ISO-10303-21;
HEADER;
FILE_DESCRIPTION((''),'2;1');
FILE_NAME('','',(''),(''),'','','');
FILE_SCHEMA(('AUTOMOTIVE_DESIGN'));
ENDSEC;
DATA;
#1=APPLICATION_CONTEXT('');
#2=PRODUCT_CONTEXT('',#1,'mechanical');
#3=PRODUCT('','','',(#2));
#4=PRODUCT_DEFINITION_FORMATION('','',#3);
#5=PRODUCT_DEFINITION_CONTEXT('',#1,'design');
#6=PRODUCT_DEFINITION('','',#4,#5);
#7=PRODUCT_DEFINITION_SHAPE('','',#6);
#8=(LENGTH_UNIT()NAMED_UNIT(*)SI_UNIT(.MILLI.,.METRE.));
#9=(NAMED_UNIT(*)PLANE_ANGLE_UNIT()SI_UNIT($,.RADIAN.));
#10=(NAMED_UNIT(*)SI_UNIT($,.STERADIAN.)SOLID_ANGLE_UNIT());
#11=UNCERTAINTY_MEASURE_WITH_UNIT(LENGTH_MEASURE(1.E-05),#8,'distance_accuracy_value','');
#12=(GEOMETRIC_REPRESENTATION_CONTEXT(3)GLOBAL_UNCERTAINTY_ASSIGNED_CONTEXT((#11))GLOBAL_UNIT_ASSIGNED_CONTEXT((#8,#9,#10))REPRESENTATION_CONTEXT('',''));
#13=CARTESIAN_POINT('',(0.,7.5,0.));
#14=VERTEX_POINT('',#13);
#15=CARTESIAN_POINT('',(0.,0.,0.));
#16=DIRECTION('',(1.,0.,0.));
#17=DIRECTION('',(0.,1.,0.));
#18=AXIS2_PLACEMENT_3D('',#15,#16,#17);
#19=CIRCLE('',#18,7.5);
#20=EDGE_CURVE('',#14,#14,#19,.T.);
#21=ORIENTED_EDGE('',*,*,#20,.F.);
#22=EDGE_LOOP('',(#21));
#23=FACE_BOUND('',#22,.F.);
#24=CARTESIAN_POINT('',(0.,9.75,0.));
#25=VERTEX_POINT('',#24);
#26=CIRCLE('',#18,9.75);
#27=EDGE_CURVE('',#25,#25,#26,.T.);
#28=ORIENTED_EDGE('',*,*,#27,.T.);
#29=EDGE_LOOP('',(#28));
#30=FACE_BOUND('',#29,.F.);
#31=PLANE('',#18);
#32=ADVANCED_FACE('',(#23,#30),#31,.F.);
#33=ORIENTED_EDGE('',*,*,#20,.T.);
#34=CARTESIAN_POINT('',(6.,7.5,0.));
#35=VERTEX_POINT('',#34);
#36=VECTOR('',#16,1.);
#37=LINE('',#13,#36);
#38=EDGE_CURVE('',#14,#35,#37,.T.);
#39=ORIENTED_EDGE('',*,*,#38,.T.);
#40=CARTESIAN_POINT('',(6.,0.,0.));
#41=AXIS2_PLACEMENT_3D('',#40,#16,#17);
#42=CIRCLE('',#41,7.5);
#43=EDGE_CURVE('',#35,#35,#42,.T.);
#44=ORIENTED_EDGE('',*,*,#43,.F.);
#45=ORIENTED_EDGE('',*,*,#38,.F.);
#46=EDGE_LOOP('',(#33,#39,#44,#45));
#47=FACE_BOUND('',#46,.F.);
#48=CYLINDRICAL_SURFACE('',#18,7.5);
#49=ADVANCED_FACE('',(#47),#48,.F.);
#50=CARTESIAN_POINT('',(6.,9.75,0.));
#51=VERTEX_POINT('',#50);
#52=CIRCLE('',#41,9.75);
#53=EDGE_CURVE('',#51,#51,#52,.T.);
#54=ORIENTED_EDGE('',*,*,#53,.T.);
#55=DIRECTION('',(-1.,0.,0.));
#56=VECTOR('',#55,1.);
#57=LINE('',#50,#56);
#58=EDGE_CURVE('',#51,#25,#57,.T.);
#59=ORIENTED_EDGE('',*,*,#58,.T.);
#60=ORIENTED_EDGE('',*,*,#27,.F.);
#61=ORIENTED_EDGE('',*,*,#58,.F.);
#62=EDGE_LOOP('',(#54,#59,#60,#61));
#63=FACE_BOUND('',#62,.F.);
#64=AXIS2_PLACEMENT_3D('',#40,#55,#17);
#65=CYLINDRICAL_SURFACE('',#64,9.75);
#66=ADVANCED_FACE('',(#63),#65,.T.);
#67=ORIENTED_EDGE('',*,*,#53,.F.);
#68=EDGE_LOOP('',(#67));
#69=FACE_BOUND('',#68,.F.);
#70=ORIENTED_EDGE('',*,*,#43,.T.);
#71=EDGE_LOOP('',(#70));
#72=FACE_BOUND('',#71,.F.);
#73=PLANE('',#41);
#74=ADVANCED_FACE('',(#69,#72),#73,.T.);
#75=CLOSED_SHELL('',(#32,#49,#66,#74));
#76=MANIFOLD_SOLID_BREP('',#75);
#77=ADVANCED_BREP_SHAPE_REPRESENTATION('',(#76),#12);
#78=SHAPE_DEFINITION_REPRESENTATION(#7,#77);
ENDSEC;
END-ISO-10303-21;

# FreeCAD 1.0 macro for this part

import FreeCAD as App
import Part
import Sketcher
from FreeCAD import Vector


def add_polygon(sketch, points):
    """Adds a closed chain of lines whose ends are joined by coincident constraints."""
    first, n = sketch.GeometryCount, len(points)
    for a, b in zip(points, points[1:] + points[:1]):
        sketch.addGeometry(Part.LineSegment(App.Vector(*a, 0), App.Vector(*b, 0)), False)
    for i in range(n):
        sketch.addConstraint(Sketcher.Constraint("Coincident", first + i, 2, first + (i + 1) % n, 1))

doc = App.newDocument("Part")
params = doc.addObject("Spreadsheet::Sheet", "Params")
for row, (alias, value) in enumerate([
    ("sketch1_width", "6 mm"),
    ("sketch1_height", "2.25 mm"),
    ("revolution_angle", "360 deg"),
], start=1):
    params.set(f"A{row}", alias)
    params.set(f"B{row}", "=" + value)
    params.setAlias(f"B{row}", alias)

body = doc.addObject("PartDesign::Body", "Body")

sketch1 = doc.addObject("Sketcher::SketchObject", "Sketch")
body.addObject(sketch1)
sketch1.AttachmentSupport = (doc.XY_Plane, [""])
sketch1.MapMode = "FlatFace"
add_polygon(sketch1, [(0, 9.8), (0, 7.5), (6, 7.5), (6, 9.8)])
sketch1.addConstraint(Sketcher.Constraint("Vertical", 0))
sketch1.addConstraint(Sketcher.Constraint("Horizontal", 1))
sketch1.addConstraint(Sketcher.Constraint("Vertical", 2))
sketch1.addConstraint(Sketcher.Constraint("Horizontal", 3))
sketch1.addConstraint(Sketcher.Constraint("PointOnObject", 0, 2, -2))
sketch1.addConstraint(Sketcher.Constraint("DistanceX", 1, 1, 1, 2, 6.0))
sketch1.addConstraint(Sketcher.Constraint("DistanceY", 0, 2, 0, 1, 2.25))
sketch1.addConstraint(Sketcher.Constraint("DistanceY", -1, 1, 0, 2, 7.5))
sketch1.setExpression("Constraints[9]", "Params.sketch1_width")
sketch1.setExpression("Constraints[10]", "Params.sketch1_height")
revolution = doc.addObject("PartDesign::Revolution", "Revolution")
body.addObject(revolution)
revolution.Profile = sketch1
revolution.ReferenceAxis = (sketch1, ["H_Axis"])
revolution.setExpression("Angle", "Params.revolution_angle")

doc.recompute()
